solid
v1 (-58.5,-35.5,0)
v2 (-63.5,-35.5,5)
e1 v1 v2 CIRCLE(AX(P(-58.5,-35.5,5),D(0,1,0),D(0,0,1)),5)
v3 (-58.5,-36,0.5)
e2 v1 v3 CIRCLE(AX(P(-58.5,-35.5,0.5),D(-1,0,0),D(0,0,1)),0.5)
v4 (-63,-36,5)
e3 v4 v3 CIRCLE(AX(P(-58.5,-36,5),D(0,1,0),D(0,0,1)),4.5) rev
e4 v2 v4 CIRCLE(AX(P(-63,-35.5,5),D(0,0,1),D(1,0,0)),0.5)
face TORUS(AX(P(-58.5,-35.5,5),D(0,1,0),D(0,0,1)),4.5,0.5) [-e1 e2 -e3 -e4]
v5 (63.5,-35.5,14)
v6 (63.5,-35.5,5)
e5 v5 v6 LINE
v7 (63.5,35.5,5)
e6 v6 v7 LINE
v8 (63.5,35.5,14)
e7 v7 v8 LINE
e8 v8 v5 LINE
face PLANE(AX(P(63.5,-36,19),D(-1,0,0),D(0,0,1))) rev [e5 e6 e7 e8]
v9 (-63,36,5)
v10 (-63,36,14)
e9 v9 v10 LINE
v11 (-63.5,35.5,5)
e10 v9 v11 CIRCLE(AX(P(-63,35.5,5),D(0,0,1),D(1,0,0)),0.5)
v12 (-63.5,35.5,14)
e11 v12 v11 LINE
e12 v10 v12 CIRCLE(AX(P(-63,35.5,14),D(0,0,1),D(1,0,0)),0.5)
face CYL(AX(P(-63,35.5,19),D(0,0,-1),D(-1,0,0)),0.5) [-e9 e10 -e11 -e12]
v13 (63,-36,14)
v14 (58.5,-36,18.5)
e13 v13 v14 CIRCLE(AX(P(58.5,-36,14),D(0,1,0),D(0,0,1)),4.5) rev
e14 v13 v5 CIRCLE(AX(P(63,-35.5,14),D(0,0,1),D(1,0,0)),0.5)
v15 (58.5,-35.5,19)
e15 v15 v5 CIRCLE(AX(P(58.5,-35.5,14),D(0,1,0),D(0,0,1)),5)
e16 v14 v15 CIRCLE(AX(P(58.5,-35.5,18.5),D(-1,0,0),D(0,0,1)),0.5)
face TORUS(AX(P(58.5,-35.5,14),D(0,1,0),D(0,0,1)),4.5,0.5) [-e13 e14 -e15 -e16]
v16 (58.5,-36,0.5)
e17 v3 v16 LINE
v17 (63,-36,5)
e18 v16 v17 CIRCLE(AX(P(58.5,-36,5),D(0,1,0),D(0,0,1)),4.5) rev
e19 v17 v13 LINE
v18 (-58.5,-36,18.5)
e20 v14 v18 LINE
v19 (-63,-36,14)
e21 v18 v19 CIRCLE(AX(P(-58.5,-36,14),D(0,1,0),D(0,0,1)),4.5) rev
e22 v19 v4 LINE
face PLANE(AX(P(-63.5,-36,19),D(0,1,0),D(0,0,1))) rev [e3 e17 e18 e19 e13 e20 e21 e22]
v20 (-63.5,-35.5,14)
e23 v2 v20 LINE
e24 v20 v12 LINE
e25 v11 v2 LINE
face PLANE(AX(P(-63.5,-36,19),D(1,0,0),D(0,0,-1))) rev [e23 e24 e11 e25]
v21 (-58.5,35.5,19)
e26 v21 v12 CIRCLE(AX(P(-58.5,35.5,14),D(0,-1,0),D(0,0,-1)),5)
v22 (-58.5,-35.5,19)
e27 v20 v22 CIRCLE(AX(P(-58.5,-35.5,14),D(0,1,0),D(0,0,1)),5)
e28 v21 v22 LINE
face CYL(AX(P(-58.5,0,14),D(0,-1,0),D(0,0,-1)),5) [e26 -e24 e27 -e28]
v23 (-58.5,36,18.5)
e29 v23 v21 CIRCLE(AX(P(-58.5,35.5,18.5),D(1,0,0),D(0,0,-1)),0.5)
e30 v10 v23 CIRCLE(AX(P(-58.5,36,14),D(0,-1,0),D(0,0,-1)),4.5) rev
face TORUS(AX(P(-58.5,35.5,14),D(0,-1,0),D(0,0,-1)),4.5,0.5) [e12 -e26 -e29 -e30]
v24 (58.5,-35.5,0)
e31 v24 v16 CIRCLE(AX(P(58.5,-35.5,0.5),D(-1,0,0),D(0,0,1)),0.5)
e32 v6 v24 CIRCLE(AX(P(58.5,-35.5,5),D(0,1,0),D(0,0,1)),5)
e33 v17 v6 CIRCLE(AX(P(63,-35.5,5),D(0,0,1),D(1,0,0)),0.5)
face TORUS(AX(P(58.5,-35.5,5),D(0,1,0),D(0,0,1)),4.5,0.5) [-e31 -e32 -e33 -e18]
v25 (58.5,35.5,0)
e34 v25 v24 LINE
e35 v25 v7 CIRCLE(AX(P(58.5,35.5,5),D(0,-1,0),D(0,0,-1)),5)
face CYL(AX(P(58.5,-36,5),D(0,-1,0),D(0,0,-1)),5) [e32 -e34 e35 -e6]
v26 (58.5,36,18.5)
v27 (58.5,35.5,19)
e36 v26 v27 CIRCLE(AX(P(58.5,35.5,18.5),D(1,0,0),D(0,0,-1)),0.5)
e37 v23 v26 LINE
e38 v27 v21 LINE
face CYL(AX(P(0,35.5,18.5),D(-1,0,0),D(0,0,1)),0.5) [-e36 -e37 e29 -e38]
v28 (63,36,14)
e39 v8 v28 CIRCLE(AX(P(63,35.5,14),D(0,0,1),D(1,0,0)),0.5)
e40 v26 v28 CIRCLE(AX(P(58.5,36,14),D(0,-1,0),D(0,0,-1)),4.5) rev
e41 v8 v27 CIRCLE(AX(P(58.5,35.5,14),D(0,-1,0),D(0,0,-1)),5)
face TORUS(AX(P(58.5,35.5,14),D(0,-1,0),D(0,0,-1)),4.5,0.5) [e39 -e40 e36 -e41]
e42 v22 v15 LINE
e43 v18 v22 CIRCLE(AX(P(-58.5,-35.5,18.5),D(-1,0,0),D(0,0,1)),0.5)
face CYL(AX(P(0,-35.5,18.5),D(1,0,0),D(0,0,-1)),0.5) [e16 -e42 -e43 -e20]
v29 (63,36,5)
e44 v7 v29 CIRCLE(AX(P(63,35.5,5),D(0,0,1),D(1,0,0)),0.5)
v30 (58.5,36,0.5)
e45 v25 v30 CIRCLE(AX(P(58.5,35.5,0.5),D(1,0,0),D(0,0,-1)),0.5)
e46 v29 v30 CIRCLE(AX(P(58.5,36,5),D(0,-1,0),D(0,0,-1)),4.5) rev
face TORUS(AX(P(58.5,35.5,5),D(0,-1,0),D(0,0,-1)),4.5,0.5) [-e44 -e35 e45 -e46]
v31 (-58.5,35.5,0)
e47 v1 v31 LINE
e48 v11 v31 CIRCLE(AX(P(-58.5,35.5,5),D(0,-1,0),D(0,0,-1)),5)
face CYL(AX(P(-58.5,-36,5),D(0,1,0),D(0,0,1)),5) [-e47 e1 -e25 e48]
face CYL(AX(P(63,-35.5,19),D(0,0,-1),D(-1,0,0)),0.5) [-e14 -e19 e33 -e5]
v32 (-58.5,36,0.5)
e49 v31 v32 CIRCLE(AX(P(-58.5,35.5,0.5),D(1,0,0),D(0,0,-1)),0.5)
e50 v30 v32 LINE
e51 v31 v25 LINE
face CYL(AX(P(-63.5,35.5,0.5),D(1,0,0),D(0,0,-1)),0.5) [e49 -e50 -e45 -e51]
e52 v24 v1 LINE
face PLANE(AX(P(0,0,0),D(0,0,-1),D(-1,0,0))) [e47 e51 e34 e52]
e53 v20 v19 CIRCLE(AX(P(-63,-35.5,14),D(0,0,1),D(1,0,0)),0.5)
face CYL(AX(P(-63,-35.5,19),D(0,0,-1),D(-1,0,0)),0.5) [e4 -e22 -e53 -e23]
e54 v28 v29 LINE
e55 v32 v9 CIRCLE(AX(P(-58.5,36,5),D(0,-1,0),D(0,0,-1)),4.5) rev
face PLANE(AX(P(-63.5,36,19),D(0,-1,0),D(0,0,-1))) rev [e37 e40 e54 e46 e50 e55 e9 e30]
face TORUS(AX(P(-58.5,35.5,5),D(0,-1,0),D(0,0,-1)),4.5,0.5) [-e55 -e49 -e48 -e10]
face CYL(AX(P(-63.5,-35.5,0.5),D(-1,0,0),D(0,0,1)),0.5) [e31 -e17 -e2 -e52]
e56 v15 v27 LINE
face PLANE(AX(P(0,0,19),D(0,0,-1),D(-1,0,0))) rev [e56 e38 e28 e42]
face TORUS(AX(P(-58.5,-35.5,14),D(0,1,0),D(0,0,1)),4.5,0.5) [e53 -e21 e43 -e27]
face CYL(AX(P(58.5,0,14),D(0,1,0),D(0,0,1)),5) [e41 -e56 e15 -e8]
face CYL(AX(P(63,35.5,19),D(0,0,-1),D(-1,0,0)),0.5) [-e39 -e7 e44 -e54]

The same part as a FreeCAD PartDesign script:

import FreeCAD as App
import Part
import Sketcher


def edges_at(feature, points):
    """Names of the edges that pass closest to the given points."""
    edges = feature.Shape.Edges
    near = lambda p: min(range(len(edges)), key=lambda i: edges[i].distToShape(Part.Vertex(*p))[0])
    return sorted({f"Edge{near(p) + 1}" for p in points})

doc = App.newDocument("Part")
body = doc.addObject("PartDesign::Body", "Body")

# Sketch on XY plane
sketch1 = body.newObject("Sketcher::SketchObject", "Sketch")
sketch1.AttachmentSupport = (doc.getObject("XY_Plane"), [""])
sketch1.MapMode = "FlatFace"
sketch1.addGeometry(Part.LineSegment(App.Vector(-64, 36, 0), App.Vector(-64, -36, 0)), False)
sketch1.addGeometry(Part.LineSegment(App.Vector(-64, -36, 0), App.Vector(64, -36, 0)), False)
sketch1.addGeometry(Part.LineSegment(App.Vector(64, -36, 0), App.Vector(64, 36, 0)), False)
sketch1.addGeometry(Part.LineSegment(App.Vector(64, 36, 0), App.Vector(-64, 36, 0)), False)
sketch1.addConstraint(Sketcher.Constraint("Coincident", 0, 2, 1, 1))
sketch1.addConstraint(Sketcher.Constraint("Coincident", 1, 2, 2, 1))
sketch1.addConstraint(Sketcher.Constraint("Coincident", 2, 2, 3, 1))
sketch1.addConstraint(Sketcher.Constraint("Coincident", 3, 2, 0, 1))
sketch1.addConstraint(Sketcher.Constraint("Vertical", 0))
sketch1.addConstraint(Sketcher.Constraint("Horizontal", 1))
sketch1.addConstraint(Sketcher.Constraint("Vertical", 2))
sketch1.addConstraint(Sketcher.Constraint("Horizontal", 3))
sketch1.addConstraint(Sketcher.Constraint("Symmetric", 0, 2, 2, 2, -1, 1))
sketch1.addConstraint(Sketcher.Constraint("DistanceX", 1, 1, 1, 2, 127.0))
sketch1.addConstraint(Sketcher.Constraint("DistanceY", 0, 2, 0, 1, 72.0))
pad1 = body.newObject("PartDesign::Pad", "Pad")
pad1.Profile = sketch1
pad1.Length = 19
doc.recompute()

fillet = body.newObject("PartDesign::Fillet", "Fillet")
fillet.Base = (pad1, edges_at(pad1, [
    (-63.5, 0, 19),
    (63.5, 0, 19),
    (-63.5, 0, 0),
    (63.5, 0, 0),
]))
fillet.Radius = 5
doc.recompute()

fillet2 = body.newObject("PartDesign::Fillet", "Fillet001")
fillet2.Base = (fillet, edges_at(fillet, [
    (63.5, 36, 9.5),
    (63.5, -36, 9.5),
    (0, 36, 0),
    (-63.5, 36, 9.5),
    (0, 36, 19),
    (-62.036, 36, 17.536),
    (-62.036, 36, 1.464),
    (62.036, 36, 17.536),
    (62.036, 36, 1.464),
    (0, -36, 0),
    (0, -36, 19),
    (-63.5, -36, 9.5),
    (-62.036, -36, 17.536),
    (-62.036, -36, 1.464),
    (62.036, -36, 17.536),
    (62.036, -36, 1.464),
]))
fillet2.Radius = 0.5

doc.recompute()
